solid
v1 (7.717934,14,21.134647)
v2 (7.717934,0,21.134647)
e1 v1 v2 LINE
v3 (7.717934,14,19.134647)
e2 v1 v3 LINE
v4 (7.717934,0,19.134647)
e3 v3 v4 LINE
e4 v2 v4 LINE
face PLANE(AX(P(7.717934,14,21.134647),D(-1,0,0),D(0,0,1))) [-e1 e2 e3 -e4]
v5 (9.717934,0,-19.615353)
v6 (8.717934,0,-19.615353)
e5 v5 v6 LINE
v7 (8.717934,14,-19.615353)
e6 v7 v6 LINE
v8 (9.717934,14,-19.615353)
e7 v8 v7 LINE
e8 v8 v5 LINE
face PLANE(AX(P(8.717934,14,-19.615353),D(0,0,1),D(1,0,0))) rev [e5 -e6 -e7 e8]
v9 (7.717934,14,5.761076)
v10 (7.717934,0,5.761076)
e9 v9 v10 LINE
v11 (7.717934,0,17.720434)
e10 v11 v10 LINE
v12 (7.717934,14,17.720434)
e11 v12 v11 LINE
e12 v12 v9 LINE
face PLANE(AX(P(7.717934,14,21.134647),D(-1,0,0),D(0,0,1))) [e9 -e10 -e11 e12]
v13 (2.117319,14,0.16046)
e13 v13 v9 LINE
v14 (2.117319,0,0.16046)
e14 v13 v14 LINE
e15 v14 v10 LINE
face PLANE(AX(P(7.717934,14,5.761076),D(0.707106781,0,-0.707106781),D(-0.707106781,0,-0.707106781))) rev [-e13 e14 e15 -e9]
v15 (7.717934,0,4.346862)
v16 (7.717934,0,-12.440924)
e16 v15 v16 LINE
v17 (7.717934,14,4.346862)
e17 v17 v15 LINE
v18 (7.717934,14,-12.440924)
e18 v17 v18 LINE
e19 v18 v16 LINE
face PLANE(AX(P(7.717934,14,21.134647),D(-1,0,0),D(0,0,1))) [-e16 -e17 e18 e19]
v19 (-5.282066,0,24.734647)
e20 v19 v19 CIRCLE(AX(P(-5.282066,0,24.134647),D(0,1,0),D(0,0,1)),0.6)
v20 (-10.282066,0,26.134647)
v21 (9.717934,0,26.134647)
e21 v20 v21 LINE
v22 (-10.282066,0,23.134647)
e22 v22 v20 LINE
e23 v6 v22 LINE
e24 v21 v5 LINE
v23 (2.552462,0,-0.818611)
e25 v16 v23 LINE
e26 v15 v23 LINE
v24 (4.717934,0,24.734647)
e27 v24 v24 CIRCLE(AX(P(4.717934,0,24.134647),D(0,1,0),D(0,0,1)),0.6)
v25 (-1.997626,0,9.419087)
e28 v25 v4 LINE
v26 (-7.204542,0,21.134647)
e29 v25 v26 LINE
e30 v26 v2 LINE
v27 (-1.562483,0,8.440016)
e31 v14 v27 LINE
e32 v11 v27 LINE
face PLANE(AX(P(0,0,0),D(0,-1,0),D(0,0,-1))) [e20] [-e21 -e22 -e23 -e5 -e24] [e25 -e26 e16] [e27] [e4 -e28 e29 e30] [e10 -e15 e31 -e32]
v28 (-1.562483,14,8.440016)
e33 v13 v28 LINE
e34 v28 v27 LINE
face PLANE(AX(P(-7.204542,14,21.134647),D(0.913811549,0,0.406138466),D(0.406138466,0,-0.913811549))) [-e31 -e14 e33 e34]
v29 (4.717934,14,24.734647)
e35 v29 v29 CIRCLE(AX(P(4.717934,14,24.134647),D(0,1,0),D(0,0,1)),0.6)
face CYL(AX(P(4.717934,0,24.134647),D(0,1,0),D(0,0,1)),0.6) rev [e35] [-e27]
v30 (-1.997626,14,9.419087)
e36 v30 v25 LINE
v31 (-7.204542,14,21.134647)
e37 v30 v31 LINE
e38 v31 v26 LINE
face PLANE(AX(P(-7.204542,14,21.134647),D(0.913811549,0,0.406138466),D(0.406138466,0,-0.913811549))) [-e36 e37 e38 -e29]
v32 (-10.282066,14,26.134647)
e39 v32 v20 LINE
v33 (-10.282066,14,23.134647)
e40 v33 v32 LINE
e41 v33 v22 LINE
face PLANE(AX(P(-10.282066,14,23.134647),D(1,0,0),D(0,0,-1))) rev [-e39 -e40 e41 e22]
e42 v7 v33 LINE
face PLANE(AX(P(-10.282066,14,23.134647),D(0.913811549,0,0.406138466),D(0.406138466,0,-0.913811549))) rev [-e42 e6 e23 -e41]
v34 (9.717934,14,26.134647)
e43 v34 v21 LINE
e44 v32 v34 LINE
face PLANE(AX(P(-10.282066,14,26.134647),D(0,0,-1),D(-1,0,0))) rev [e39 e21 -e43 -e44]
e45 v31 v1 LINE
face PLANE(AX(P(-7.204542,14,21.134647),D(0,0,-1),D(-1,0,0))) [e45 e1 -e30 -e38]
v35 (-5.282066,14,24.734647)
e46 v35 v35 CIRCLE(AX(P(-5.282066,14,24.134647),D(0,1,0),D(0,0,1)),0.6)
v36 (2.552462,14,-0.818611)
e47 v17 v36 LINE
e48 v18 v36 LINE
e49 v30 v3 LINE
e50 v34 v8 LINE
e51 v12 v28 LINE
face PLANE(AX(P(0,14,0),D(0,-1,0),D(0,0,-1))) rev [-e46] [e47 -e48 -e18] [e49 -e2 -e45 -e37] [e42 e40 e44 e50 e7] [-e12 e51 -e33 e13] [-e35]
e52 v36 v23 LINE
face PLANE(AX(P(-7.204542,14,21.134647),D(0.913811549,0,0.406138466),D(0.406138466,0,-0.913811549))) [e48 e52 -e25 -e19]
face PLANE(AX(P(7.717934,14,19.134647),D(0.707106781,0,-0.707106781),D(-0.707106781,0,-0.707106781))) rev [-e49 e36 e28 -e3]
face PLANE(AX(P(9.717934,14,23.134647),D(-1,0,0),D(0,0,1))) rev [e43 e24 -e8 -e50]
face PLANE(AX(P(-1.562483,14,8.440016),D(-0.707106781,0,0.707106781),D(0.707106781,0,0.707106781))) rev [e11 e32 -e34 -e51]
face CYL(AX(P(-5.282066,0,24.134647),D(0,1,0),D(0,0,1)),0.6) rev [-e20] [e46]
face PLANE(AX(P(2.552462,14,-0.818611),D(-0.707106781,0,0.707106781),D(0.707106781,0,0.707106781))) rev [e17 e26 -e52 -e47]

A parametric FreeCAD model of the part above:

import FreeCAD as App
import Part
import Sketcher
from FreeCAD import Vector
Q = App.Units.Quantity

doc = App.newDocument("Part")
params = doc.addObject("Spreadsheet::Sheet", "Params")
for row, (alias, value) in enumerate([
    ("pad1_length", "14 mm"),
    ("pad2_length", "14 mm"),
    ("sketch3_width", "20 mm"),
    ("sketch3_width2", "1 mm"),
    ("sketch3_height", "3 mm"),
    ("sketch3_height2", "45.75 mm"),
    ("pad3_length", "14 mm"),
    ("sketch4_diameter", "1.2 mm"),
], start=1):
    params.set(f"A{row}", alias)
    params.set(f"B{row}", "=" + value)
    params.setAlias(f"B{row}", alias)

body = doc.addObject("PartDesign::Body", "Body")

# Sketch on XZ plane
sketch1 = doc.addObject("Sketcher::SketchObject", "Sketch")
body.addObject(sketch1)
sketch1.AttachmentSupport = (doc.XZ_Plane, [""])
sketch1.MapMode = "FlatFace"
sketch1.addGeometry([
    Part.LineSegment(Vector(-2, 9.4, 0), Vector(7.7, 19.1, 0)),
    Part.LineSegment(Vector(7.7, 19.1, 0), Vector(7.7, 17.7, 0)),
    Part.LineSegment(Vector(7.7, 17.7, 0), Vector(-1.6, 8.4, 0)),
    Part.LineSegment(Vector(-1.6, 8.4, 0), Vector(-2, 9.4, 0)),
], False)
sketch1.addConstraint([
    Sketcher.Constraint("Coincident", 0, 2, 1, 1),
    Sketcher.Constraint("Coincident", 1, 2, 2, 1),
    Sketcher.Constraint("Coincident", 2, 2, 3, 1),
    Sketcher.Constraint("Coincident", 3, 2, 0, 1),
    Sketcher.Constraint("Vertical", 1),
    Sketcher.Constraint("Parallel", 0, 2),
    Sketcher.Constraint("Angle", 0, Q("45 deg")),
    Sketcher.Constraint("DistanceY", 1, 2, 1, 1, Q("1.414214 mm")),
    Sketcher.Constraint("DistanceY", 2, 2, 0, 2, Q("10.694631 mm")),
    Sketcher.Constraint("DistanceY", 2, 2, 3, 2, Q("0.979071 mm")),
    Sketcher.Constraint("DistanceX", -1, 1, 0, 2, Q("7.717934 mm")),
    Sketcher.Constraint("DistanceY", -1, 1, 0, 2, Q("19.134647 mm")),
])
pad1 = doc.addObject("PartDesign::Pad", "Pad")
body.addObject(pad1)
pad1.Profile = sketch1
pad1.setExpression("Length", "Params.pad1_length")
pad1.Reversed = True
body2 = doc.addObject("PartDesign::Body", "Body001")

# Sketch on XZ plane
sketch2 = doc.addObject("Sketcher::SketchObject", "Sketch001")
body2.addObject(sketch2)
sketch2.AttachmentSupport = (doc.getObject("XZ_Plane001"), [""])
sketch2.MapMode = "FlatFace"
sketch2.addGeometry([
    Part.LineSegment(Vector(2.1, 0.2, 0), Vector(7.7, 5.8, 0)),
    Part.LineSegment(Vector(7.7, 5.8, 0), Vector(7.7, 4.3, 0)),
    Part.LineSegment(Vector(7.7, 4.3, 0), Vector(2.6, -0.8, 0)),
    Part.LineSegment(Vector(2.6, -0.8, 0), Vector(2.1, 0.2, 0)),
], False)
sketch2.addConstraint([
    Sketcher.Constraint("Coincident", 0, 2, 1, 1),
    Sketcher.Constraint("Coincident", 1, 2, 2, 1),
    Sketcher.Constraint("Coincident", 2, 2, 3, 1),
    Sketcher.Constraint("Coincident", 3, 2, 0, 1),
    Sketcher.Constraint("Vertical", 1),
    Sketcher.Constraint("Parallel", 0, 2),
    Sketcher.Constraint("Angle", 0, Q("45 deg")),
    Sketcher.Constraint("DistanceY", 3, 2, 1, 2, Q("4.186402 mm")),
    Sketcher.Constraint("Distance", 2, Q("7.305081 mm")),
    Sketcher.Constraint("DistanceY", 1, 2, 1, 1, Q("1.414214 mm")),
    Sketcher.Constraint("DistanceY", -1, 1, 1, 2, Q("4.346862 mm")),
    Sketcher.Constraint("DistanceX", -1, 1, 2, 2, Q("2.552462 mm")),
])
pad2 = doc.addObject("PartDesign::Pad", "Pad001")
body2.addObject(pad2)
pad2.Profile = sketch2
pad2.setExpression("Length", "Params.pad2_length")
pad2.Reversed = True
body.AllowCompound = True
doc.recompute()

boolean = doc.addObject("PartDesign::Boolean", "Boolean")
body.addObject(boolean)
boolean.Type = "Fuse"
boolean.addObjects([body2])

# Sketch on XZ plane
sketch3 = doc.addObject("Sketcher::SketchObject", "Sketch002")
body.addObject(sketch3)
sketch3.AttachmentSupport = (doc.XZ_Plane, [""])
sketch3.MapMode = "FlatFace"
sketch3.addGeometry([
    Part.LineSegment(Vector(8.7, -19.6, 0), Vector(-10.3, 23.1, 0)),  # 0
    Part.LineSegment(Vector(-10.3, 23.1, 0), Vector(-10.3, 26.1, 0)),  # 1
    Part.LineSegment(Vector(-10.3, 26.1, 0), Vector(9.7, 26.1, 0)),  # 2
    Part.LineSegment(Vector(9.7, 26.1, 0), Vector(9.7, -19.6, 0)),  # 3
    Part.LineSegment(Vector(9.7, -19.6, 0), Vector(8.7, -19.6, 0)),  # 4
    Part.LineSegment(Vector(7.7, 21.1, 0), Vector(-7.2, 21.1, 0)),  # 5
    Part.LineSegment(Vector(-7.2, 21.1, 0), Vector(7.7, -12.4, 0)),  # 6
    Part.LineSegment(Vector(7.7, -12.4, 0), Vector(7.7, 21.1, 0)),  # 7
], False)
sketch3.addConstraint([
    Sketcher.Constraint("Coincident", 0, 2, 1, 1),
    Sketcher.Constraint("Coincident", 1, 2, 2, 1),
    Sketcher.Constraint("Coincident", 2, 2, 3, 1),
    Sketcher.Constraint("Coincident", 3, 2, 4, 1),
    Sketcher.Constraint("Coincident", 4, 2, 0, 1),
    Sketcher.Constraint("Coincident", 5, 2, 6, 1),
    Sketcher.Constraint("Coincident", 6, 2, 7, 1),
    Sketcher.Constraint("Coincident", 7, 2, 5, 1),
    Sketcher.Constraint("Vertical", 1),
    Sketcher.Constraint("Horizontal", 2),
    Sketcher.Constraint("Vertical", 3),
    Sketcher.Constraint("Horizontal", 4),
    Sketcher.Constraint("Horizontal", 5),
    Sketcher.Constraint("Vertical", 7),
    Sketcher.Constraint("Parallel", 0, 6),
    Sketcher.Constraint("DistanceX", 2, 1, 2, 2, Q("20 mm")),
    Sketcher.Constraint("DistanceX", 4, 2, 4, 1, Q("1 mm")),
    Sketcher.Constraint("DistanceY", 1, 1, 1, 2, Q("3 mm")),
    Sketcher.Constraint("DistanceY", 5, 2, 0, 2, Q("2 mm")),
    Sketcher.Constraint("DistanceX", 6, 2, 4, 2, Q("1 mm")),
    Sketcher.Constraint("DistanceY", 3, 2, 3, 1, Q("45.75 mm")),
    Sketcher.Constraint("DistanceY", 7, 1, 7, 2, Q("33.575571 mm")),
    Sketcher.Constraint("DistanceX", 5, 2, -1, 1, Q("7.204542 mm")),
    Sketcher.Constraint("DistanceY", -1, 1, 0, 2, Q("23.134647 mm")),
])
sketch3.setExpression("Constraints[15]", "Params.sketch3_width")
sketch3.setExpression("Constraints[16]", "Params.sketch3_width2")
sketch3.setExpression("Constraints[17]", "Params.sketch3_height")
sketch3.setExpression("Constraints[20]", "Params.sketch3_height2")
pad3 = doc.addObject("PartDesign::Pad", "Pad002")
body.addObject(pad3)
pad3.Profile = sketch3
pad3.setExpression("Length", "Params.pad3_length")
pad3.Reversed = True

# Sketch on XZ plane
sketch4 = doc.addObject("Sketcher::SketchObject", "Sketch003")
body.addObject(sketch4)
sketch4.AttachmentSupport = (doc.XZ_Plane, [""])
sketch4.MapMode = "FlatFace"
sketch4.AttachmentOffset = App.Placement(Vector(0, 0, -14), App.Rotation())
sketch4.addGeometry([
    Part.Circle(Vector(4.7, 24.1, 0), Vector(0, 0, 1), 0.6),
    Part.Circle(Vector(-5.3, 24.1, 0), Vector(0, 0, 1), 0.6),
], False)
sketch4.addConstraint([
    Sketcher.Constraint("Equal", 0, 1),
    Sketcher.Constraint("Horizontal", 0, 3, 1, 3),
    Sketcher.Constraint("Diameter", 0, Q("1.2 mm")),
    Sketcher.Constraint("DistanceX", 1, 3, 0, 3, Q("10 mm")),
    Sketcher.Constraint("DistanceX", -1, 1, 0, 3, Q("4.717934 mm")),
    Sketcher.Constraint("DistanceY", -1, 1, 0, 3, Q("24.134647 mm")),
])
sketch4.setExpression("Constraints[2]", "Params.sketch4_diameter")
pocket1 = doc.addObject("PartDesign::Pocket", "Pocket")
body.addObject(pocket1)
pocket1.Profile = sketch4
pocket1.Type = "ThroughAll"
pocket1.Reversed = True

doc.recompute()
